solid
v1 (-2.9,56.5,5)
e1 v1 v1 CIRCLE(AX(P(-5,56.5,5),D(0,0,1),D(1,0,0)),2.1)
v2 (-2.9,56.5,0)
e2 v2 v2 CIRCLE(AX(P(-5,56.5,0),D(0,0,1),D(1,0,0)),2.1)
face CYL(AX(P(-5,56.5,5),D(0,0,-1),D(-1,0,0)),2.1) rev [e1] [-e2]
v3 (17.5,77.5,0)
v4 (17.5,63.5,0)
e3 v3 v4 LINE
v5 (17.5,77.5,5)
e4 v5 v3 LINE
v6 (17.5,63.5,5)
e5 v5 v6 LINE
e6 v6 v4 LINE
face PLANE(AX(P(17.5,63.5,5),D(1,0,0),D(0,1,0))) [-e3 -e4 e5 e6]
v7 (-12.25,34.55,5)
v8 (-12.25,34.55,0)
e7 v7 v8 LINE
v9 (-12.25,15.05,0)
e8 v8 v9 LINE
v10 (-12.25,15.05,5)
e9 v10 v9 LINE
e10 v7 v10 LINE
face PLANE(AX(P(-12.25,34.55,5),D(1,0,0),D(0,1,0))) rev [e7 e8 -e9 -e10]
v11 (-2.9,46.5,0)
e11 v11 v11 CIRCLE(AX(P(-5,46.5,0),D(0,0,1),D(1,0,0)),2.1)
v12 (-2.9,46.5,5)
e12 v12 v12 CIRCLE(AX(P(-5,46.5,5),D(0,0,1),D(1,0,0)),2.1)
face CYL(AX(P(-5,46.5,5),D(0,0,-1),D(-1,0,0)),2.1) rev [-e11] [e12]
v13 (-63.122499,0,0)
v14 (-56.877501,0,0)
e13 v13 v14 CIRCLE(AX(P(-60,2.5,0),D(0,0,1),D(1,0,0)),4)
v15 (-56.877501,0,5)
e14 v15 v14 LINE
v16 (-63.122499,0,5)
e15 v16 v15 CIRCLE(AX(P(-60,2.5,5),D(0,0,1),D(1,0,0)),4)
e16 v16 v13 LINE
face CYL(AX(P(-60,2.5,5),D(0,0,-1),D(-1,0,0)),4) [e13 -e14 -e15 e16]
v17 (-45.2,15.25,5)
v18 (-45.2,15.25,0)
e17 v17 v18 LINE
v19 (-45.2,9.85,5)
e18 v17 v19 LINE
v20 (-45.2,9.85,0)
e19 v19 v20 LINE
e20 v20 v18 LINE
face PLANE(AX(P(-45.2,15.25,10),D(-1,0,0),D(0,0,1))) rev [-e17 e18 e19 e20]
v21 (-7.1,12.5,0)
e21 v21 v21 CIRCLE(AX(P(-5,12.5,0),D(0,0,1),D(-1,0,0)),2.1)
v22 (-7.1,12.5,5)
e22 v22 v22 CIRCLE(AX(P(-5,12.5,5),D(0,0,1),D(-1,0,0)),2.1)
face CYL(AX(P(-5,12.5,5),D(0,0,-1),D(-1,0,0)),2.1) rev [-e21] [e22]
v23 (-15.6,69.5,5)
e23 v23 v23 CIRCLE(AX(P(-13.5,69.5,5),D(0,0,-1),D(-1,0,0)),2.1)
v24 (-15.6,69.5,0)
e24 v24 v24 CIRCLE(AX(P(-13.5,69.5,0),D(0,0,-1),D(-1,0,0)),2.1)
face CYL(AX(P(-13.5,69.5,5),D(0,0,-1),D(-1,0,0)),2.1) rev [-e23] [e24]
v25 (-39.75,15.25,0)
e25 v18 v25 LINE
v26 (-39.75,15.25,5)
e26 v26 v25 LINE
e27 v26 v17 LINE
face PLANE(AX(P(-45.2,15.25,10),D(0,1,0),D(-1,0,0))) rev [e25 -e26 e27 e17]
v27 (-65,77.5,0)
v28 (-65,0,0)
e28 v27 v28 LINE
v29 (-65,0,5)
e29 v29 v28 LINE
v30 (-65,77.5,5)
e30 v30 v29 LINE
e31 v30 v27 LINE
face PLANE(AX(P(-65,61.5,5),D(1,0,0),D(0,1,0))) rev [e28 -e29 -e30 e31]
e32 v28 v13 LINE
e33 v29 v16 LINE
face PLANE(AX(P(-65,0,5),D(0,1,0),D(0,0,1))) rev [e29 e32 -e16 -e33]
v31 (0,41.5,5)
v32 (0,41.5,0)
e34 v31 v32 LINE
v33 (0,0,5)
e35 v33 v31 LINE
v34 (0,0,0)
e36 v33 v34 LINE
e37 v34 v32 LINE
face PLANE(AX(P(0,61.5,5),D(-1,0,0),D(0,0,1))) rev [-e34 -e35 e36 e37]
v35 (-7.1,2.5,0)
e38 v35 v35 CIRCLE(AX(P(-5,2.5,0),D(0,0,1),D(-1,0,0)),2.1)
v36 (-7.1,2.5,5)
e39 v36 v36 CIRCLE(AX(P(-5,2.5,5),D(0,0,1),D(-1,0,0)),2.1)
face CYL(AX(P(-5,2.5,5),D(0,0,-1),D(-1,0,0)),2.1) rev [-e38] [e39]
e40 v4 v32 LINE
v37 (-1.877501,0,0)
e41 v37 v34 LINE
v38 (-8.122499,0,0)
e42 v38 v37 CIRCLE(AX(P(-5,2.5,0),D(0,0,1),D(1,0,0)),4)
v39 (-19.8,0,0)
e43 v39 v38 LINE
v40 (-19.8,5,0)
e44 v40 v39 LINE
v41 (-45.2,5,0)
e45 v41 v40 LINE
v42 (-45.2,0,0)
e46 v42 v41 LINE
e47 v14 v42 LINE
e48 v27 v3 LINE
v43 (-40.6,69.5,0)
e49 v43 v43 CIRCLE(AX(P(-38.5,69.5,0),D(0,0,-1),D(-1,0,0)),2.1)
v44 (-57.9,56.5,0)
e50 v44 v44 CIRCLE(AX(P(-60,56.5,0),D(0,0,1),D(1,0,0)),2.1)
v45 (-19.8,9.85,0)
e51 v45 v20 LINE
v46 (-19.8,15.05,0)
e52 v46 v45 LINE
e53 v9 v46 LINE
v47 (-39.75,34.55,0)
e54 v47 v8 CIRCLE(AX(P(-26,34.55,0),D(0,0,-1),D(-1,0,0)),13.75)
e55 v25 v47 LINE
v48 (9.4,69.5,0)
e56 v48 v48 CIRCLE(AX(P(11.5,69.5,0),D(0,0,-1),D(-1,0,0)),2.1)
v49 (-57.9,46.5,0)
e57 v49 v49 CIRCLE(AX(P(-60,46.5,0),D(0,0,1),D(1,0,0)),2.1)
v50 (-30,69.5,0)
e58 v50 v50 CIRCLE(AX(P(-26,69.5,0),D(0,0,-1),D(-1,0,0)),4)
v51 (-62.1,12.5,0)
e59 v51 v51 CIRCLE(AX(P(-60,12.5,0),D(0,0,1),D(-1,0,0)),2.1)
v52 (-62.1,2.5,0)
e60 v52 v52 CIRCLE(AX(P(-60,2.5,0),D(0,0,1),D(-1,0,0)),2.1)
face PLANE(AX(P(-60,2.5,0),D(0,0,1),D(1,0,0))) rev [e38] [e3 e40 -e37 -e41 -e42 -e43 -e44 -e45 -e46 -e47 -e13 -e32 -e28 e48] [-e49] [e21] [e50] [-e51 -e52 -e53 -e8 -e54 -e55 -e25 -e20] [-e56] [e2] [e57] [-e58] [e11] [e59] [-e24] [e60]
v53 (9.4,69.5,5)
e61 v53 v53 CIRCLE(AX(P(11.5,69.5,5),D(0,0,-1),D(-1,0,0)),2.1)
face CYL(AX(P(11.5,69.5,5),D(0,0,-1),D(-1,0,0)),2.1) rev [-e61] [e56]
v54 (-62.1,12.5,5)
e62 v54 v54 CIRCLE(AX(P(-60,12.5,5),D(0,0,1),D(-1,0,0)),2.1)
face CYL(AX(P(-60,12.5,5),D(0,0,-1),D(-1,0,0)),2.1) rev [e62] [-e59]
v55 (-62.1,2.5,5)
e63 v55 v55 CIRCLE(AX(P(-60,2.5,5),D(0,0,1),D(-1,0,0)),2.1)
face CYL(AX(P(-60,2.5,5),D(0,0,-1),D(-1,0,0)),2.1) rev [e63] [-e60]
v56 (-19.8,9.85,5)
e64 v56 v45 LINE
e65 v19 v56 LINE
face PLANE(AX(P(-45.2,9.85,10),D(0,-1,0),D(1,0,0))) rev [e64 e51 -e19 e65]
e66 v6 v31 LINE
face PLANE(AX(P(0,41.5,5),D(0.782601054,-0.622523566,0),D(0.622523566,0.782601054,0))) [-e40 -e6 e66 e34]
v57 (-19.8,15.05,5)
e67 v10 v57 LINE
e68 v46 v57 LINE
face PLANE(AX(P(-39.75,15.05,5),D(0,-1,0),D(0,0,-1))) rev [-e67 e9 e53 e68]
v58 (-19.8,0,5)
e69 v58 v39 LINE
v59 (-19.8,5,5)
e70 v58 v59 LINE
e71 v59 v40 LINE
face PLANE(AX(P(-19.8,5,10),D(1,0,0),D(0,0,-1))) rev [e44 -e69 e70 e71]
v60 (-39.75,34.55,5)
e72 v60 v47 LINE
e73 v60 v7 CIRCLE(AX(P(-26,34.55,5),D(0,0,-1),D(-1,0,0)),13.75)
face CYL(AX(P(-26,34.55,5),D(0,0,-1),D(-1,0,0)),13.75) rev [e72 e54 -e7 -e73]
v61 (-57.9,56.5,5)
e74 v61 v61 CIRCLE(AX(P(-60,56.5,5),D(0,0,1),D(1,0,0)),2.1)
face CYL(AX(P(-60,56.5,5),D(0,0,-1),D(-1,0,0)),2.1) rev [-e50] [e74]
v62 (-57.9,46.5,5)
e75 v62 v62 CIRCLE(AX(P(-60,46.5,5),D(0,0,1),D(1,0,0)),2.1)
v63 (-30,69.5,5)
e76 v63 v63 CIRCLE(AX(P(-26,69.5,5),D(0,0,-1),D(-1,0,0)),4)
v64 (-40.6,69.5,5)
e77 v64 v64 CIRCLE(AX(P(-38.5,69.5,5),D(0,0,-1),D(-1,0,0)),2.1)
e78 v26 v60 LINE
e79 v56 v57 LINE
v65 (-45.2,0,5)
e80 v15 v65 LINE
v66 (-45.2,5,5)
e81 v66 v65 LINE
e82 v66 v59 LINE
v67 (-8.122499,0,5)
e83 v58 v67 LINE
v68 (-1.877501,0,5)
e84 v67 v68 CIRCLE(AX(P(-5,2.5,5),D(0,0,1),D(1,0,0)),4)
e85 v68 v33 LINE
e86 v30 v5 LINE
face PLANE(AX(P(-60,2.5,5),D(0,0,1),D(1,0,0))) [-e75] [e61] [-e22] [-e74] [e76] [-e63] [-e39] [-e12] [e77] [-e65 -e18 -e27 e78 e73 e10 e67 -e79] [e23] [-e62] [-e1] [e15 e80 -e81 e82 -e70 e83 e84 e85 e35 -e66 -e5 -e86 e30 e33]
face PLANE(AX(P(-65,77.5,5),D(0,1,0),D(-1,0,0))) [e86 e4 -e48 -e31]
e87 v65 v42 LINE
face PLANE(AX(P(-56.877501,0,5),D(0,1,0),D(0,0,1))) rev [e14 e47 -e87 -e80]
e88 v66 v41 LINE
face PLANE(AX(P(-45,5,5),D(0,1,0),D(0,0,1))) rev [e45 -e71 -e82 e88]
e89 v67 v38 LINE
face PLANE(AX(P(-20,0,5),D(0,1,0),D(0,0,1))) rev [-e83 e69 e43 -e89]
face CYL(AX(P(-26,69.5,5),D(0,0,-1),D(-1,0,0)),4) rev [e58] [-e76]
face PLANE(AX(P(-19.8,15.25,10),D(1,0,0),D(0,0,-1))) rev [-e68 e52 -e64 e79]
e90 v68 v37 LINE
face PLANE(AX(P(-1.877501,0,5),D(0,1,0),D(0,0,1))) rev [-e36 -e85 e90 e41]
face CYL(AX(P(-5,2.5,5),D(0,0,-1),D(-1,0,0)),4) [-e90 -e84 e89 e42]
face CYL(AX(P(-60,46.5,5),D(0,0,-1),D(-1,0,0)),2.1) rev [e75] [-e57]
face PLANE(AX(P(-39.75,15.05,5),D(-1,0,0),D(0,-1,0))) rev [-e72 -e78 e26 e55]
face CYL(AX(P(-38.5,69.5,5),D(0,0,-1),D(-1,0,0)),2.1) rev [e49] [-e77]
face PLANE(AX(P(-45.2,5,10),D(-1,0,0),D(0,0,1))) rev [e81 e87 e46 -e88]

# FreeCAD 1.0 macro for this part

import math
import FreeCAD as App
import Part
import Sketcher

V = App.Vector
Q = App.Units.Quantity


def add_polygon(sketch, points):
    """Adds a closed chain of lines whose ends are joined by coincident constraints."""
    first, n = sketch.GeometryCount, len(points)
    for a, b in zip(points, points[1:] + points[:1]):
        sketch.addGeometry(Part.LineSegment(App.Vector(*a, 0), App.Vector(*b, 0)), False)
    for i in range(n):
        sketch.addConstraint(Sketcher.Constraint("Coincident", first + i, 2, first + (i + 1) % n, 1))

doc = App.newDocument("Part")
params = doc.addObject("Spreadsheet::Sheet", "Params")
for row, (alias, value) in enumerate([
    ("sketch1_radius", "4 mm"),
    ("sketch1_diameter", "4.2 mm"),
    ("sketch1_width", "65 mm"),
    ("sketch1_width2", "25 mm"),
    ("sketch1_height", "5 mm"),
    ("pad1_length", "5 mm"),
    ("sketch2_radius", "13.75 mm"),
    ("sketch2_height", "19.5 mm"),
    ("pocket1_length", "5 mm"),
    ("sketch3_diameter", "8 mm"),
    ("sketch3_diameter2", "4.2 mm"),
    ("sketch3_width", "65 mm"),
    ("sketch3_height", "20 mm"),
    ("sketch3_height2", "16 mm"),
    ("pad2_length", "5 mm"),
    ("sketch4_height", "5 mm"),
    ("sketch4_width", "25.4 mm"),
    ("sketch4_height2", "5.4 mm"),
    ("pocket2_length", "10 mm"),
], start=1):
    params.set(f"A{row}", alias)
    params.set(f"B{row}", "=" + value)
    params.setAlias(f"B{row}", alias)

body = doc.addObject("PartDesign::Body", "Body")

sketch1 = doc.addObject("Sketcher::SketchObject", "Sketch")
body.addObject(sketch1)
sketch1.AttachmentSupport = (doc.XY_Plane, [""])
sketch1.MapMode = "FlatFace"
sketch1.addGeometry(Part.LineSegment(V(0, 61.5, 0), V(-65, 61.5, 0)), False)
sketch1.addGeometry(Part.LineSegment(V(-65, 61.5, 0), V(-65, 0, 0)), False)
sketch1.addGeometry(Part.LineSegment(V(-65, 0, 0), V(-63.1, 0, 0)), False)
sketch1.addGeometry(Part.ArcOfCircle(Part.Circle(V(-60, 2.5, 0), V(0, 0, 1), 4), math.radians(-141), math.radians(-39)), False)
sketch1.addGeometry(Part.LineSegment(V(-56.9, 0, 0), V(-45, 0, 0)), False)
sketch1.addGeometry(Part.LineSegment(V(-45, 0, 0), V(-45, 5, 0)), False)
sketch1.addGeometry(Part.LineSegment(V(-45, 5, 0), V(-20, 5, 0)), False)
sketch1.addGeometry(Part.LineSegment(V(-20, 5, 0), V(-20, 0, 0)), False)
sketch1.addGeometry(Part.LineSegment(V(-20, 0, 0), V(-8.1, 0, 0)), False)
sketch1.addGeometry(Part.ArcOfCircle(Part.Circle(V(-5, 2.5, 0), V(0, 0, 1), 4), math.radians(-141), math.radians(-39)), False)
sketch1.addGeometry(Part.LineSegment(V(-1.9, 0, 0), V(0, 0, 0)), False)
sketch1.addGeometry(Part.LineSegment(V(0, 0, 0), V(0, 61.5, 0)), False)
sketch1.addGeometry(Part.Circle(V(-5, 2.5, 0), V(0, 0, 1), 2.1), False)
sketch1.addGeometry(Part.Circle(V(-5, 12.5, 0), V(0, 0, 1), 2.1), False)
add_polygon(sketch1, [(-45, 9.9), (-45, 15.1), (-20, 15.1), (-20, 9.9)])
sketch1.addGeometry(Part.Circle(V(-60, 2.5, 0), V(0, 0, 1), 2.1), False)
sketch1.addGeometry(Part.Circle(V(-60, 12.5, 0), V(0, 0, 1), 2.1), False)
sketch1.addGeometry(Part.Circle(V(-5, 46.5, 0), V(0, 0, 1), 2.1), False)
sketch1.addGeometry(Part.Circle(V(-5, 56.5, 0), V(0, 0, 1), 2.1), False)
sketch1.addGeometry(Part.Circle(V(-60, 46.5, 0), V(0, 0, 1), 2.1), False)
sketch1.addGeometry(Part.Circle(V(-60, 56.5, 0), V(0, 0, 1), 2.1), False)
sketch1.addConstraint([
    Sketcher.Constraint("Coincident", 0, 2, 1, 1),
    Sketcher.Constraint("Coincident", 1, 2, 2, 1),
    Sketcher.Constraint("Coincident", 2, 2, 3, 1),
    Sketcher.Constraint("Coincident", 3, 2, 4, 1),
    Sketcher.Constraint("Coincident", 4, 2, 5, 1),
    Sketcher.Constraint("Coincident", 5, 2, 6, 1),
    Sketcher.Constraint("Coincident", 6, 2, 7, 1),
    Sketcher.Constraint("Coincident", 7, 2, 8, 1),
    Sketcher.Constraint("Coincident", 8, 2, 9, 1),
    Sketcher.Constraint("Coincident", 9, 2, 10, 1),
    Sketcher.Constraint("Coincident", 10, 2, 11, 1),
    Sketcher.Constraint("Coincident", 11, 2, 0, 1),
    Sketcher.Constraint("Horizontal", 0),
    Sketcher.Constraint("Vertical", 1),
    Sketcher.Constraint("Horizontal", 2),
    Sketcher.Constraint("Horizontal", 4),
    Sketcher.Constraint("Vertical", 5),
    Sketcher.Constraint("Horizontal", 6),
    Sketcher.Constraint("Vertical", 7),
    Sketcher.Constraint("Horizontal", 8),
    Sketcher.Constraint("Horizontal", 10),
    Sketcher.Constraint("Vertical", 11),
    Sketcher.Constraint("Vertical", 14),
    Sketcher.Constraint("Horizontal", 15),
    Sketcher.Constraint("Vertical", 16),
    Sketcher.Constraint("Horizontal", 17),
    Sketcher.Constraint("Coincident", 10, 2, -1, 1),
    Sketcher.Constraint("Coincident", 12, 3, 9, 3),
    Sketcher.Constraint("Coincident", 18, 3, 3, 3),
    Sketcher.Constraint("Equal", 3, 9),
    Sketcher.Constraint("Equal", 12, 13),
    Sketcher.Constraint("Equal", 13, 18),
    Sketcher.Constraint("Equal", 18, 19),
    Sketcher.Constraint("Equal", 19, 20),
    Sketcher.Constraint("Equal", 20, 21),
    Sketcher.Constraint("Equal", 21, 22),
    Sketcher.Constraint("Equal", 22, 23),
    Sketcher.Constraint("PointOnObject", 1, 2, -1),
    Sketcher.Constraint("PointOnObject", 3, 2, -1),
    Sketcher.Constraint("PointOnObject", 7, 2, -1),
    Sketcher.Constraint("Horizontal", 3, 3, 9, 3),
    Sketcher.Constraint("Horizontal", 13, 3, 19, 3),
    Sketcher.Constraint("Horizontal", 20, 3, 22, 3),
    Sketcher.Constraint("Horizontal", 21, 3, 23, 3),
    Sketcher.Constraint("Vertical", 12, 3, 13, 3),
    Sketcher.Constraint("Vertical", 18, 3, 19, 3),
    Sketcher.Constraint("Vertical", 13, 3, 20, 3),
    Sketcher.Constraint("Vertical", 20, 3, 21, 3),
    Sketcher.Constraint("Vertical", 19, 3, 22, 3),
    Sketcher.Constraint("Vertical", 22, 3, 23, 3),
    Sketcher.Constraint("Vertical", 5, 2, 14, 2),
    Sketcher.Constraint("Vertical", 7, 2, 15, 2),
    Sketcher.Constraint("Equal", 4, 8),
    Sketcher.Constraint("Equal", 2, 10),
    Sketcher.Constraint("Radius", 3, Q("4 mm")),
    Sketcher.Constraint("Diameter", 12, Q("4.2 mm")),
    Sketcher.Constraint("DistanceX", 0, 2, 0, 1, Q("65 mm")),
    Sketcher.Constraint("DistanceX", 6, 1, 6, 2, Q("25 mm")),
    Sketcher.Constraint("DistanceY", 5, 1, 5, 2, Q("5 mm")),
    Sketcher.Constraint("DistanceY", 1, 2, 1, 1, Q("61.5 mm")),
    Sketcher.Constraint("DistanceY", 14, 1, 14, 2, Q("5.1 mm")),
    Sketcher.Constraint("DistanceX", 3, 3, -1, 1, Q("60 mm")),
    Sketcher.Constraint("DistanceY", 9, 3, 13, 3, Q("10 mm")),
    Sketcher.Constraint("DistanceY", 13, 3, 20, 3, Q("34 mm")),
    Sketcher.Constraint("DistanceY", 20, 3, 21, 3, Q("10 mm")),
    Sketcher.Constraint("DistanceY", 23, 3, 0, 2, Q("5 mm")),
    Sketcher.Constraint("DistanceY", -1, 1, 14, 2, Q("15.05 mm")),
])
sketch1.setExpression("Constraints[58]", "Params.sketch1_radius")
sketch1.setExpression("Constraints[59]", "Params.sketch1_diameter")
sketch1.setExpression("Constraints[60]", "Params.sketch1_width")
sketch1.setExpression("Constraints[61]", "Params.sketch1_width2")
sketch1.setExpression("Constraints[62]", "Params.sketch1_height")
pad1 = doc.addObject("PartDesign::Pad", "Pad")
body.addObject(pad1)
pad1.Profile = sketch1
pad1.setExpression("Length", "Params.pad1_length")

sketch2 = doc.addObject("Sketcher::SketchObject", "Sketch001")
body.addObject(sketch2)
sketch2.AttachmentSupport = (doc.XY_Plane, [""])
sketch2.MapMode = "FlatFace"
sketch2.addGeometry([
    Part.LineSegment(V(-40, 15, 0), V(-40, 35, 0)),
    Part.ArcOfCircle(Part.Circle(V(-26, 35, 0), V(0, 0, 1), 14), math.radians(0), math.radians(180)),
    Part.LineSegment(V(-12, 35, 0), V(-12, 15, 0)),
    Part.LineSegment(V(-12, 15, 0), V(-40, 15, 0)),
], False)
sketch2.addConstraint([
    Sketcher.Constraint("Tangent", 0, 2, 1, 2),
    Sketcher.Constraint("Tangent", 1, 1, 2, 1),
    Sketcher.Constraint("Coincident", 2, 2, 3, 1),
    Sketcher.Constraint("Coincident", 3, 2, 0, 1),
    Sketcher.Constraint("Vertical", 0),
    Sketcher.Constraint("Vertical", 2),
    Sketcher.Constraint("Horizontal", 3),
    Sketcher.Constraint("Radius", 1, Q("13.75 mm")),
    Sketcher.Constraint("DistanceY", 0, 1, 0, 2, Q("19.5 mm")),
    Sketcher.Constraint("DistanceX", 1, 3, -1, 1, Q("26 mm")),
    Sketcher.Constraint("DistanceY", -1, 1, 1, 3, Q("34.55 mm")),
])
sketch2.setExpression("Constraints[7]", "Params.sketch2_radius")
sketch2.setExpression("Constraints[8]", "Params.sketch2_height")
pocket1 = doc.addObject("PartDesign::Pocket", "Pocket")
body.addObject(pocket1)
pocket1.Profile = sketch2
pocket1.setExpression("Length", "Params.pocket1_length")
pocket1.Reversed = True

sketch3 = doc.addObject("Sketcher::SketchObject", "Sketch002")
body.addObject(sketch3)
sketch3.AttachmentSupport = (doc.XY_Plane, [""])
sketch3.MapMode = "FlatFace"
add_polygon(sketch3, [(17.5, 63.5), (0, 41.5), (0, 61.5), (-65, 61.5), (-65, 77.5), (17.5, 77.5)])
sketch3.addGeometry(Part.Circle(V(-38.5, 69.5, 0), V(0, 0, 1), 2.1), False)
sketch3.addGeometry(Part.Circle(V(-26, 69.5, 0), V(0, 0, 1), 4), False)
sketch3.addGeometry(Part.Circle(V(-13.5, 69.5, 0), V(0, 0, 1), 2.1), False)
sketch3.addGeometry(Part.Circle(V(11.5, 69.5, 0), V(0, 0, 1), 2.1), False)
sketch3.addConstraint([
    Sketcher.Constraint("Vertical", 1),
    Sketcher.Constraint("Horizontal", 2),
    Sketcher.Constraint("Vertical", 3),
    Sketcher.Constraint("Horizontal", 4),
    Sketcher.Constraint("Vertical", 5),
    Sketcher.Constraint("Equal", 6, 8),
    Sketcher.Constraint("Equal", 8, 9),
    Sketcher.Constraint("PointOnObject", 0, 2, -2),
    Sketcher.Constraint("Horizontal", 6, 3, 7, 3),
    Sketcher.Constraint("Horizontal", 7, 3, 8, 3),
    Sketcher.Constraint("Horizontal", 8, 3, 9, 3),
    Sketcher.Constraint("Diameter", 7, Q("8 mm")),
    Sketcher.Constraint("Diameter", 6, Q("4.2 mm")),
    Sketcher.Constraint("DistanceX", 2, 2, 2, 1, Q("65 mm")),
    Sketcher.Constraint("DistanceY", 1, 1, 1, 2, Q("20 mm")),
    Sketcher.Constraint("DistanceY", 3, 1, 3, 2, Q("16 mm")),
    Sketcher.Constraint("DistanceY", 5, 2, 5, 1, Q("14 mm")),
    Sketcher.Constraint("DistanceX", 4, 1, 4, 2, Q("82.5 mm")),
    Sketcher.Constraint("DistanceX", 7, 3, -1, 1, Q("26 mm")),
    Sketcher.Constraint("DistanceX", 6, 3, 8, 3, Q("25 mm")),
    Sketcher.Constraint("DistanceX", 8, 3, 9, 3, Q("25 mm")),
    Sketcher.Constraint("DistanceY", 0, 2, 9, 3, Q("28 mm")),
    Sketcher.Constraint("DistanceX", 9, 3, 4, 2, Q("6 mm")),
    Sketcher.Constraint("DistanceY", -1, 1, 6, 3, Q("69.5 mm")),
])
sketch3.setExpression("Constraints[17]", "Params.sketch3_diameter")
sketch3.setExpression("Constraints[18]", "Params.sketch3_diameter2")
sketch3.setExpression("Constraints[19]", "Params.sketch3_width")
sketch3.setExpression("Constraints[20]", "Params.sketch3_height")
sketch3.setExpression("Constraints[21]", "Params.sketch3_height2")
pad2 = doc.addObject("PartDesign::Pad", "Pad001")
body.addObject(pad2)
pad2.Profile = sketch3
pad2.setExpression("Length", "Params.pad2_length")

sketch4 = doc.addObject("Sketcher::SketchObject", "Sketch003")
body.addObject(sketch4)
sketch4.AttachmentSupport = (doc.XY_Plane, [""])
sketch4.MapMode = "FlatFace"
add_polygon(sketch4, [(-20, 5), (-20, 0), (-45, 0), (-45, 5)])
add_polygon(sketch4, [(-20, 15), (-20, 10), (-45, 10), (-45, 15)])
sketch4.addConstraint([
    Sketcher.Constraint("Vertical", 0),
    Sketcher.Constraint("Horizontal", 1),
    Sketcher.Constraint("Vertical", 2),
    Sketcher.Constraint("Horizontal", 3),
    Sketcher.Constraint("Vertical", 4),
    Sketcher.Constraint("Horizontal", 5),
    Sketcher.Constraint("Vertical", 6),
    Sketcher.Constraint("Horizontal", 7),
    Sketcher.Constraint("PointOnObject", 0, 2, -1),
    Sketcher.Constraint("Vertical", 3, 2, 4, 2),
    Sketcher.Constraint("Vertical", 2, 2, 5, 2),
    Sketcher.Constraint("DistanceY", 0, 2, 0, 1, Q("5 mm")),
    Sketcher.Constraint("DistanceX", 1, 2, 1, 1, Q("25.4 mm")),
    Sketcher.Constraint("DistanceY", 4, 2, 4, 1, Q("5.4 mm")),
    Sketcher.Constraint("DistanceX", 0, 2, -1, 1, Q("19.8 mm")),
    Sketcher.Constraint("DistanceY", -1, 1, 4, 2, Q("9.85 mm")),
])
sketch4.setExpression("Constraints[19]", "Params.sketch4_height")
sketch4.setExpression("Constraints[20]", "Params.sketch4_width")
sketch4.setExpression("Constraints[21]", "Params.sketch4_height2")
pocket2 = doc.addObject("PartDesign::Pocket", "Pocket001")
body.addObject(pocket2)
pocket2.Profile = sketch4
pocket2.setExpression("Length", "Params.pocket2_length")
pocket2.Reversed = True

doc.recompute()
